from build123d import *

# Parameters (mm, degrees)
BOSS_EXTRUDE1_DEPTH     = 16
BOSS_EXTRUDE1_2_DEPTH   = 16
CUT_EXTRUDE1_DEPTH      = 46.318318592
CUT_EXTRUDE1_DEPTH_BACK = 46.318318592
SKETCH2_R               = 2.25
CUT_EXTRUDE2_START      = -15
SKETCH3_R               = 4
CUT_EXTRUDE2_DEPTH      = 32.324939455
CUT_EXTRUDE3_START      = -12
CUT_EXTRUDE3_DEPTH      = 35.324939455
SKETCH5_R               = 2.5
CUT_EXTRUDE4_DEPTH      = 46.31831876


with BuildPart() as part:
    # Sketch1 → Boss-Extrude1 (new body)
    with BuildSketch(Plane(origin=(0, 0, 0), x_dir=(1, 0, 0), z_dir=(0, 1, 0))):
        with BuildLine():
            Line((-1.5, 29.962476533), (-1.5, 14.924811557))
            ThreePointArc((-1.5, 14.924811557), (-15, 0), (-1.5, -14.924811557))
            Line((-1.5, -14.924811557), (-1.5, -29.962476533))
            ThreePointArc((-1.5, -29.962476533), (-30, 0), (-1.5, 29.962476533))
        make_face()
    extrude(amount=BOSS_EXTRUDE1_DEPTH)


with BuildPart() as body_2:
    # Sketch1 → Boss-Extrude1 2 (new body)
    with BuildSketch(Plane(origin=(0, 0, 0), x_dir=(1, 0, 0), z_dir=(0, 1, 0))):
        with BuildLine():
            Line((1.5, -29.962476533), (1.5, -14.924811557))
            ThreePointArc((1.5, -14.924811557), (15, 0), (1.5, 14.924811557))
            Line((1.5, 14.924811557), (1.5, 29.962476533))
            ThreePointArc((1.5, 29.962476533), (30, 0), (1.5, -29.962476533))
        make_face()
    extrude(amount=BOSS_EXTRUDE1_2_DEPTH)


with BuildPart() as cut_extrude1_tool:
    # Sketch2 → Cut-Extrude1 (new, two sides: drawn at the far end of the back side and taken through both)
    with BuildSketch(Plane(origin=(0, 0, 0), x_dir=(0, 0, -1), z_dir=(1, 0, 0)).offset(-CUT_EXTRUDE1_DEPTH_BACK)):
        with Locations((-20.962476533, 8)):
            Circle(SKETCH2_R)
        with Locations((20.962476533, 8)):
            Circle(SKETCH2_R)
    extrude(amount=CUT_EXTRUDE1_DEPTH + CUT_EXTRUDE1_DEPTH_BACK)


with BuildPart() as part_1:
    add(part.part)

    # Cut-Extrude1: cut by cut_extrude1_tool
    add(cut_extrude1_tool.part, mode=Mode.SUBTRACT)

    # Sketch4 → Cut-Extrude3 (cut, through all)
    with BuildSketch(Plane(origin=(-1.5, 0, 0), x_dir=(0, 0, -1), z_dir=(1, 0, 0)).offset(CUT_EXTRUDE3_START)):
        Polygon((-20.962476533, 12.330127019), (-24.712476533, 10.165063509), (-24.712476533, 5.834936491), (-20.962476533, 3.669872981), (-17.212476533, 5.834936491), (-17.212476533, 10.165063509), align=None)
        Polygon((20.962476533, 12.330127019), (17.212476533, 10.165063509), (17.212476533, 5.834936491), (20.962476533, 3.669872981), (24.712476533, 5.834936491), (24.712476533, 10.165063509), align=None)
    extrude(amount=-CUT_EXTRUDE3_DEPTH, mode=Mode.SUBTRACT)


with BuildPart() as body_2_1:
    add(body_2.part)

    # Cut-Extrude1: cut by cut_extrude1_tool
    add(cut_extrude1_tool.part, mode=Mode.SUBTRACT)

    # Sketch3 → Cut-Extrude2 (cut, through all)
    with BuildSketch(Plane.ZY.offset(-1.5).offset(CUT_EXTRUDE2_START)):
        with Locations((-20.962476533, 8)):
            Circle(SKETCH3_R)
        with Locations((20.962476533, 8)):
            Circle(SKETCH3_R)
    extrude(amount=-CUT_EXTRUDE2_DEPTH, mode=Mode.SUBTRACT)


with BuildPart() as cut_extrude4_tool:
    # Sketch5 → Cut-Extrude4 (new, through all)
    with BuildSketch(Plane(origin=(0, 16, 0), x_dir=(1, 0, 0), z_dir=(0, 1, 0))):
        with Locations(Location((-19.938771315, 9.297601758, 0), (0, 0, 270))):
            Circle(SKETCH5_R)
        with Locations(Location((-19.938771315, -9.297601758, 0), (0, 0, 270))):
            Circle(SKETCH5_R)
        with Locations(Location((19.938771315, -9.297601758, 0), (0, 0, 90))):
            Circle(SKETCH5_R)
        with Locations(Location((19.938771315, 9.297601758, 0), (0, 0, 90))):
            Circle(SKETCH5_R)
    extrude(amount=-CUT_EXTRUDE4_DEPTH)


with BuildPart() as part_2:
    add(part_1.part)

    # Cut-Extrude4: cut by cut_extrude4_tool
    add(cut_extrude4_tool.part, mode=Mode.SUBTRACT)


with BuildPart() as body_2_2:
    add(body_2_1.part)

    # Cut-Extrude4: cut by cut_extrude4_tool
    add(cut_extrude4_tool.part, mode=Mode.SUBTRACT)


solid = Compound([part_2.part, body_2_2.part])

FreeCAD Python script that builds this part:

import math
import FreeCAD as App
import Part
import Sketcher
Q = App.Units.Quantity

doc = App.newDocument("Part")
params = doc.addObject("Spreadsheet::Sheet", "Params")
for row, (alias, value) in enumerate([
    ("sketch1_radius", "30 mm"),
    ("sketch1_radius2", "15 mm"),
    ("pad1_length", "16 mm"),
    ("sketch2_radius", "30 mm"),
    ("sketch2_radius2", "15 mm"),
    ("pad2_length", "16 mm"),
    ("sketch3_diameter", "4.5 mm"),
    ("pad3_length", "46.318319 mm"),
    ("pad3_length2", "46.318319 mm"),
    ("sketch5_diameter", "8 mm"),
    ("sketch6_diameter", "5 mm"),
    ("pad4_length", "46.318319 mm"),
], start=1):
    params.set(f"A{row}", alias)
    params.set(f"B{row}", "=" + value)
    params.setAlias(f"B{row}", alias)

body = doc.addObject("PartDesign::Body", "Body")

sketch1 = doc.addObject("Sketcher::SketchObject", "Sketch")
body.addObject(sketch1)
sketch1.AttachmentSupport = (doc.XZ_Plane, [""])
sketch1.MapMode = "FlatFace"
sketch1.addGeometry([
    Part.LineSegment(App.Vector(-2, -15, 0), App.Vector(-2, -30, 0)),
    Part.ArcOfCircle(Part.Circle(App.Vector(0, 0, 0), App.Vector(0, 0, 1), 30), math.radians(93), math.radians(267)),
    Part.LineSegment(App.Vector(-2, 30, 0), App.Vector(-2, 15, 0)),
    Part.ArcOfCircle(Part.Circle(App.Vector(0, 0, 0), App.Vector(0, 0, 1), 15), math.radians(96), math.radians(264)),
], False)
sketch1.addConstraint([
    Sketcher.Constraint("Coincident", 0, 2, 1, 2),
    Sketcher.Constraint("Coincident", 1, 1, 2, 1),
    Sketcher.Constraint("Coincident", 2, 2, 3, 1),
    Sketcher.Constraint("Coincident", 3, 2, 0, 1),
    Sketcher.Constraint("Vertical", 0),
    Sketcher.Constraint("Vertical", 2),
    Sketcher.Constraint("Coincident", 1, 3, -1, 1),
    Sketcher.Constraint("Coincident", 3, 3, -1, 1),
    Sketcher.Constraint("Vertical", 0, 2, 1, 1),
    Sketcher.Constraint("Radius", 1, Q("30 mm")),
    Sketcher.Constraint("Radius", 3, Q("15 mm")),
    Sketcher.Constraint("DistanceX", 0, 2, -1, 1, Q("1.5 mm")),
])
sketch1.setExpression("Constraints[9]", "Params.sketch1_radius")
sketch1.setExpression("Constraints[10]", "Params.sketch1_radius2")
pad1 = doc.addObject("PartDesign::Pad", "Pad")
body.addObject(pad1)
pad1.Profile = sketch1
pad1.setExpression("Length", "Params.pad1_length")
pad1.Reversed = True
body2 = doc.addObject("PartDesign::Body", "Body001")

sketch2 = doc.addObject("Sketcher::SketchObject", "Sketch001")
body2.addObject(sketch2)
sketch2.AttachmentSupport = (doc.getObject("XZ_Plane001"), [""])
sketch2.MapMode = "FlatFace"
sketch2.addGeometry([
    Part.LineSegment(App.Vector(2, 15, 0), App.Vector(2, 30, 0)),
    Part.ArcOfCircle(Part.Circle(App.Vector(0, 0, 0), App.Vector(0, 0, 1), 30), math.radians(-87), math.radians(87)),
    Part.LineSegment(App.Vector(2, -30, 0), App.Vector(2, -15, 0)),
    Part.ArcOfCircle(Part.Circle(App.Vector(0, 0, 0), App.Vector(0, 0, 1), 15), math.radians(-84), math.radians(84)),
], False)
sketch2.addConstraint([
    Sketcher.Constraint("Coincident", 0, 2, 1, 2),
    Sketcher.Constraint("Coincident", 1, 1, 2, 1),
    Sketcher.Constraint("Coincident", 2, 2, 3, 1),
    Sketcher.Constraint("Coincident", 3, 2, 0, 1),
    Sketcher.Constraint("Vertical", 0),
    Sketcher.Constraint("Vertical", 2),
    Sketcher.Constraint("Coincident", 1, 3, -1, 1),
    Sketcher.Constraint("Coincident", 3, 3, -1, 1),
    Sketcher.Constraint("Vertical", 0, 2, 1, 1),
    Sketcher.Constraint("Radius", 1, Q("30 mm")),
    Sketcher.Constraint("Radius", 3, Q("15 mm")),
    Sketcher.Constraint("DistanceX", -1, 1, 0, 2, Q("1.5 mm")),
])
sketch2.setExpression("Constraints[9]", "Params.sketch2_radius")
sketch2.setExpression("Constraints[10]", "Params.sketch2_radius2")
pad2 = doc.addObject("PartDesign::Pad", "Pad001")
body2.addObject(pad2)
pad2.Profile = sketch2
pad2.setExpression("Length", "Params.pad2_length")
pad2.Reversed = True
body3 = doc.addObject("PartDesign::Body", "Body002")
body3.AllowCompound = True

sketch3 = doc.addObject("Sketcher::SketchObject", "Sketch002")
body3.addObject(sketch3)
sketch3.AttachmentSupport = (doc.getObject("YZ_Plane002"), [""])
sketch3.MapMode = "FlatFace"
sketch3.addGeometry([
    Part.Circle(App.Vector(8, 21, 0), App.Vector(0, 0, 1), 2.2),
    Part.Circle(App.Vector(8, -21, 0), App.Vector(0, 0, 1), 2.2),
], False)
sketch3.addConstraint([
    Sketcher.Constraint("Equal", 0, 1),
    Sketcher.Constraint("Symmetric", 0, 3, 1, 3, -1),
    Sketcher.Constraint("Diameter", 0, Q("4.5 mm")),
    Sketcher.Constraint("DistanceX", -1, 1, 0, 3, Q("8 mm")),
    Sketcher.Constraint("DistanceY", -1, 1, 0, 3, Q("20.962477 mm")),
])
sketch3.setExpression("Constraints[2]", "Params.sketch3_diameter")
pad3 = doc.addObject("PartDesign::Pad", "Pad002")
body3.addObject(pad3)
pad3.Profile = sketch3
pad3.Type = "TwoLengths"
pad3.setExpression("Length", "Params.pad3_length")
pad3.setExpression("Length2", "Params.pad3_length2")
doc.recompute()

body4 = doc.addObject("PartDesign::Body", "Body003")
body4.BaseFeature = body3
boolean = doc.addObject("PartDesign::Boolean", "Boolean")
body.addObject(boolean)
boolean.Type = "Cut"
boolean.addObjects([body4])
doc.recompute()

sketch4 = doc.addObject("Sketcher::SketchObject", "Sketch003")
body.addObject(sketch4)
sketch4.AttachmentSupport = (doc.YZ_Plane, [""])
sketch4.MapMode = "FlatFace"
sketch4.AttachmentOffset = App.Placement(App.Vector(0, 0, -13.5), App.Rotation())
sketch4.addGeometry([
    Part.LineSegment(App.Vector(12.3, 21, 0), App.Vector(10.2, 24.7, 0)),
    Part.LineSegment(App.Vector(10.2, 24.7, 0), App.Vector(5.8, 24.7, 0)),
    Part.LineSegment(App.Vector(5.8, 24.7, 0), App.Vector(3.7, 21, 0)),
    Part.LineSegment(App.Vector(3.7, 21, 0), App.Vector(5.8, 17.2, 0)),
    Part.LineSegment(App.Vector(5.8, 17.2, 0), App.Vector(10.2, 17.2, 0)),
    Part.LineSegment(App.Vector(10.2, 17.2, 0), App.Vector(12.3, 21, 0)),
    Part.LineSegment(App.Vector(12.3, -21, 0), App.Vector(10.2, -17.2, 0)),
    Part.LineSegment(App.Vector(10.2, -17.2, 0), App.Vector(5.8, -17.2, 0)),
    Part.LineSegment(App.Vector(5.8, -17.2, 0), App.Vector(3.7, -21, 0)),
    Part.LineSegment(App.Vector(3.7, -21, 0), App.Vector(5.8, -24.7, 0)),
    Part.LineSegment(App.Vector(5.8, -24.7, 0), App.Vector(10.2, -24.7, 0)),
    Part.LineSegment(App.Vector(10.2, -24.7, 0), App.Vector(12.3, -21, 0)),
], False)
sketch4.addConstraint([
    Sketcher.Constraint("Coincident", 0, 2, 1, 1),
    Sketcher.Constraint("Coincident", 1, 2, 2, 1),
    Sketcher.Constraint("Coincident", 2, 2, 3, 1),
    Sketcher.Constraint("Coincident", 3, 2, 4, 1),
    Sketcher.Constraint("Coincident", 4, 2, 5, 1),
    Sketcher.Constraint("Coincident", 5, 2, 0, 1),
    Sketcher.Constraint("Coincident", 6, 2, 7, 1),
    Sketcher.Constraint("Coincident", 7, 2, 8, 1),
    Sketcher.Constraint("Coincident", 8, 2, 9, 1),
    Sketcher.Constraint("Coincident", 9, 2, 10, 1),
    Sketcher.Constraint("Coincident", 10, 2, 11, 1),
    Sketcher.Constraint("Coincident", 11, 2, 6, 1),
    Sketcher.Constraint("Horizontal", 1),
    Sketcher.Constraint("Horizontal", 4),
    Sketcher.Constraint("Horizontal", 7),
    Sketcher.Constraint("Horizontal", 10),
    Sketcher.Constraint("Symmetric", 4, 2, 6, 2, -1),
    Sketcher.Constraint("Symmetric", 2, 2, 8, 2, -1),
    Sketcher.Constraint("Symmetric", 1, 2, 9, 2, -1),
    Sketcher.Constraint("Symmetric", 5, 2, 11, 2, -1),
    Sketcher.Constraint("Parallel", 0, 3),
    Sketcher.Constraint("Parallel", 2, 5),
    Sketcher.Constraint("Parallel", 3, 6),
    Sketcher.Constraint("Parallel", 5, 8),
    Sketcher.Constraint("Parallel", 8, 11),
    Sketcher.Constraint("Horizontal", 2, 2, 5, 2),
    Sketcher.Constraint("Vertical", 1, 2, 3, 2),
    Sketcher.Constraint("Angle", 0, Q("120 deg")),
    Sketcher.Constraint("DistanceY", 3, 2, 1, 2, Q("7.5 mm")),
    Sketcher.Constraint("DistanceX", 1, 2, 1, 1, Q("4.330127 mm")),
    Sketcher.Constraint("DistanceX", -1, 1, 0, 2, Q("10.165064 mm")),
    Sketcher.Constraint("DistanceY", -1, 1, 0, 2, Q("24.712477 mm")),
])
pocket1 = doc.addObject("PartDesign::Pocket", "Pocket")
body.addObject(pocket1)
pocket1.Profile = sketch4
pocket1.Type = "ThroughAll"
doc.recompute()

boolean2 = doc.addObject("PartDesign::Boolean", "Boolean001")
body2.addObject(boolean2)
boolean2.Type = "Cut"
boolean2.addObjects([body3])

sketch5 = doc.addObject("Sketcher::SketchObject", "Sketch004")
body2.addObject(sketch5)
sketch5.AttachmentSupport = (doc.getObject("YZ_Plane001"), [""])
sketch5.MapMode = "FlatFace"
sketch5.AttachmentOffset = App.Placement(App.Vector(0, 0, 16.5), App.Rotation())
sketch5.addGeometry([
    Part.Circle(App.Vector(8, -21, 0), App.Vector(0, 0, 1), 4),
    Part.Circle(App.Vector(8, 21, 0), App.Vector(0, 0, 1), 4),
], False)
sketch5.addConstraint([
    Sketcher.Constraint("Equal", 0, 1),
    Sketcher.Constraint("Symmetric", 0, 3, 1, 3, -1),
    Sketcher.Constraint("Diameter", 0, Q("8 mm")),
    Sketcher.Constraint("DistanceX", -1, 1, 0, 3, Q("8 mm")),
    Sketcher.Constraint("DistanceY", 0, 3, -1, 1, Q("20.962477 mm")),
])
sketch5.setExpression("Constraints[2]", "Params.sketch5_diameter")
pocket2 = doc.addObject("PartDesign::Pocket", "Pocket001")
body2.addObject(pocket2)
pocket2.Profile = sketch5
pocket2.Type = "ThroughAll"
pocket2.Reversed = True
body5 = doc.addObject("PartDesign::Body", "Body004")
body5.AllowCompound = True

sketch6 = doc.addObject("Sketcher::SketchObject", "Sketch005")
body5.addObject(sketch6)
sketch6.AttachmentSupport = (doc.getObject("XZ_Plane004"), [""])
sketch6.MapMode = "FlatFace"
sketch6.AttachmentOffset = App.Placement(App.Vector(0, 0, -16), App.Rotation())
sketch6.addGeometry([
    Part.Circle(App.Vector(-19.9, -9.3, 0), App.Vector(0, 0, 1), 2.5),
    Part.Circle(App.Vector(-19.9, 9.3, 0), App.Vector(0, 0, 1), 2.5),
    Part.Circle(App.Vector(19.9, 9.3, 0), App.Vector(0, 0, 1), 2.5),
    Part.Circle(App.Vector(19.9, -9.3, 0), App.Vector(0, 0, 1), 2.5),
], False)
sketch6.addConstraint([
    Sketcher.Constraint("Equal", 0, 1),
    Sketcher.Constraint("Equal", 1, 2),
    Sketcher.Constraint("Equal", 2, 3),
    Sketcher.Constraint("Symmetric", 0, 3, 2, 3, -1, 1),
    Sketcher.Constraint("Symmetric", 1, 3, 3, 3, -1, 1),
    Sketcher.Constraint("Symmetric", 1, 3, 2, 3, -2),
    Sketcher.Constraint("Diameter", 0, Q("5 mm")),
    Sketcher.Constraint("DistanceY", 0, 3, -1, 1, Q("9.297602 mm")),
    Sketcher.Constraint("DistanceX", 0, 3, -1, 1, Q("19.938771 mm")),
])
sketch6.setExpression("Constraints[6]", "Params.sketch6_diameter")
pad4 = doc.addObject("PartDesign::Pad", "Pad003")
body5.addObject(pad4)
pad4.Profile = sketch6
pad4.setExpression("Length", "Params.pad4_length")
doc.recompute()

body6 = doc.addObject("PartDesign::Body", "Body005")
body6.BaseFeature = body5
boolean3 = doc.addObject("PartDesign::Boolean", "Boolean002")
body.addObject(boolean3)
boolean3.Type = "Cut"
boolean3.addObjects([body6])
doc.recompute()

boolean4 = doc.addObject("PartDesign::Boolean", "Boolean003")
body2.addObject(boolean4)
boolean4.Type = "Cut"
boolean4.addObjects([body5])

doc.recompute()
